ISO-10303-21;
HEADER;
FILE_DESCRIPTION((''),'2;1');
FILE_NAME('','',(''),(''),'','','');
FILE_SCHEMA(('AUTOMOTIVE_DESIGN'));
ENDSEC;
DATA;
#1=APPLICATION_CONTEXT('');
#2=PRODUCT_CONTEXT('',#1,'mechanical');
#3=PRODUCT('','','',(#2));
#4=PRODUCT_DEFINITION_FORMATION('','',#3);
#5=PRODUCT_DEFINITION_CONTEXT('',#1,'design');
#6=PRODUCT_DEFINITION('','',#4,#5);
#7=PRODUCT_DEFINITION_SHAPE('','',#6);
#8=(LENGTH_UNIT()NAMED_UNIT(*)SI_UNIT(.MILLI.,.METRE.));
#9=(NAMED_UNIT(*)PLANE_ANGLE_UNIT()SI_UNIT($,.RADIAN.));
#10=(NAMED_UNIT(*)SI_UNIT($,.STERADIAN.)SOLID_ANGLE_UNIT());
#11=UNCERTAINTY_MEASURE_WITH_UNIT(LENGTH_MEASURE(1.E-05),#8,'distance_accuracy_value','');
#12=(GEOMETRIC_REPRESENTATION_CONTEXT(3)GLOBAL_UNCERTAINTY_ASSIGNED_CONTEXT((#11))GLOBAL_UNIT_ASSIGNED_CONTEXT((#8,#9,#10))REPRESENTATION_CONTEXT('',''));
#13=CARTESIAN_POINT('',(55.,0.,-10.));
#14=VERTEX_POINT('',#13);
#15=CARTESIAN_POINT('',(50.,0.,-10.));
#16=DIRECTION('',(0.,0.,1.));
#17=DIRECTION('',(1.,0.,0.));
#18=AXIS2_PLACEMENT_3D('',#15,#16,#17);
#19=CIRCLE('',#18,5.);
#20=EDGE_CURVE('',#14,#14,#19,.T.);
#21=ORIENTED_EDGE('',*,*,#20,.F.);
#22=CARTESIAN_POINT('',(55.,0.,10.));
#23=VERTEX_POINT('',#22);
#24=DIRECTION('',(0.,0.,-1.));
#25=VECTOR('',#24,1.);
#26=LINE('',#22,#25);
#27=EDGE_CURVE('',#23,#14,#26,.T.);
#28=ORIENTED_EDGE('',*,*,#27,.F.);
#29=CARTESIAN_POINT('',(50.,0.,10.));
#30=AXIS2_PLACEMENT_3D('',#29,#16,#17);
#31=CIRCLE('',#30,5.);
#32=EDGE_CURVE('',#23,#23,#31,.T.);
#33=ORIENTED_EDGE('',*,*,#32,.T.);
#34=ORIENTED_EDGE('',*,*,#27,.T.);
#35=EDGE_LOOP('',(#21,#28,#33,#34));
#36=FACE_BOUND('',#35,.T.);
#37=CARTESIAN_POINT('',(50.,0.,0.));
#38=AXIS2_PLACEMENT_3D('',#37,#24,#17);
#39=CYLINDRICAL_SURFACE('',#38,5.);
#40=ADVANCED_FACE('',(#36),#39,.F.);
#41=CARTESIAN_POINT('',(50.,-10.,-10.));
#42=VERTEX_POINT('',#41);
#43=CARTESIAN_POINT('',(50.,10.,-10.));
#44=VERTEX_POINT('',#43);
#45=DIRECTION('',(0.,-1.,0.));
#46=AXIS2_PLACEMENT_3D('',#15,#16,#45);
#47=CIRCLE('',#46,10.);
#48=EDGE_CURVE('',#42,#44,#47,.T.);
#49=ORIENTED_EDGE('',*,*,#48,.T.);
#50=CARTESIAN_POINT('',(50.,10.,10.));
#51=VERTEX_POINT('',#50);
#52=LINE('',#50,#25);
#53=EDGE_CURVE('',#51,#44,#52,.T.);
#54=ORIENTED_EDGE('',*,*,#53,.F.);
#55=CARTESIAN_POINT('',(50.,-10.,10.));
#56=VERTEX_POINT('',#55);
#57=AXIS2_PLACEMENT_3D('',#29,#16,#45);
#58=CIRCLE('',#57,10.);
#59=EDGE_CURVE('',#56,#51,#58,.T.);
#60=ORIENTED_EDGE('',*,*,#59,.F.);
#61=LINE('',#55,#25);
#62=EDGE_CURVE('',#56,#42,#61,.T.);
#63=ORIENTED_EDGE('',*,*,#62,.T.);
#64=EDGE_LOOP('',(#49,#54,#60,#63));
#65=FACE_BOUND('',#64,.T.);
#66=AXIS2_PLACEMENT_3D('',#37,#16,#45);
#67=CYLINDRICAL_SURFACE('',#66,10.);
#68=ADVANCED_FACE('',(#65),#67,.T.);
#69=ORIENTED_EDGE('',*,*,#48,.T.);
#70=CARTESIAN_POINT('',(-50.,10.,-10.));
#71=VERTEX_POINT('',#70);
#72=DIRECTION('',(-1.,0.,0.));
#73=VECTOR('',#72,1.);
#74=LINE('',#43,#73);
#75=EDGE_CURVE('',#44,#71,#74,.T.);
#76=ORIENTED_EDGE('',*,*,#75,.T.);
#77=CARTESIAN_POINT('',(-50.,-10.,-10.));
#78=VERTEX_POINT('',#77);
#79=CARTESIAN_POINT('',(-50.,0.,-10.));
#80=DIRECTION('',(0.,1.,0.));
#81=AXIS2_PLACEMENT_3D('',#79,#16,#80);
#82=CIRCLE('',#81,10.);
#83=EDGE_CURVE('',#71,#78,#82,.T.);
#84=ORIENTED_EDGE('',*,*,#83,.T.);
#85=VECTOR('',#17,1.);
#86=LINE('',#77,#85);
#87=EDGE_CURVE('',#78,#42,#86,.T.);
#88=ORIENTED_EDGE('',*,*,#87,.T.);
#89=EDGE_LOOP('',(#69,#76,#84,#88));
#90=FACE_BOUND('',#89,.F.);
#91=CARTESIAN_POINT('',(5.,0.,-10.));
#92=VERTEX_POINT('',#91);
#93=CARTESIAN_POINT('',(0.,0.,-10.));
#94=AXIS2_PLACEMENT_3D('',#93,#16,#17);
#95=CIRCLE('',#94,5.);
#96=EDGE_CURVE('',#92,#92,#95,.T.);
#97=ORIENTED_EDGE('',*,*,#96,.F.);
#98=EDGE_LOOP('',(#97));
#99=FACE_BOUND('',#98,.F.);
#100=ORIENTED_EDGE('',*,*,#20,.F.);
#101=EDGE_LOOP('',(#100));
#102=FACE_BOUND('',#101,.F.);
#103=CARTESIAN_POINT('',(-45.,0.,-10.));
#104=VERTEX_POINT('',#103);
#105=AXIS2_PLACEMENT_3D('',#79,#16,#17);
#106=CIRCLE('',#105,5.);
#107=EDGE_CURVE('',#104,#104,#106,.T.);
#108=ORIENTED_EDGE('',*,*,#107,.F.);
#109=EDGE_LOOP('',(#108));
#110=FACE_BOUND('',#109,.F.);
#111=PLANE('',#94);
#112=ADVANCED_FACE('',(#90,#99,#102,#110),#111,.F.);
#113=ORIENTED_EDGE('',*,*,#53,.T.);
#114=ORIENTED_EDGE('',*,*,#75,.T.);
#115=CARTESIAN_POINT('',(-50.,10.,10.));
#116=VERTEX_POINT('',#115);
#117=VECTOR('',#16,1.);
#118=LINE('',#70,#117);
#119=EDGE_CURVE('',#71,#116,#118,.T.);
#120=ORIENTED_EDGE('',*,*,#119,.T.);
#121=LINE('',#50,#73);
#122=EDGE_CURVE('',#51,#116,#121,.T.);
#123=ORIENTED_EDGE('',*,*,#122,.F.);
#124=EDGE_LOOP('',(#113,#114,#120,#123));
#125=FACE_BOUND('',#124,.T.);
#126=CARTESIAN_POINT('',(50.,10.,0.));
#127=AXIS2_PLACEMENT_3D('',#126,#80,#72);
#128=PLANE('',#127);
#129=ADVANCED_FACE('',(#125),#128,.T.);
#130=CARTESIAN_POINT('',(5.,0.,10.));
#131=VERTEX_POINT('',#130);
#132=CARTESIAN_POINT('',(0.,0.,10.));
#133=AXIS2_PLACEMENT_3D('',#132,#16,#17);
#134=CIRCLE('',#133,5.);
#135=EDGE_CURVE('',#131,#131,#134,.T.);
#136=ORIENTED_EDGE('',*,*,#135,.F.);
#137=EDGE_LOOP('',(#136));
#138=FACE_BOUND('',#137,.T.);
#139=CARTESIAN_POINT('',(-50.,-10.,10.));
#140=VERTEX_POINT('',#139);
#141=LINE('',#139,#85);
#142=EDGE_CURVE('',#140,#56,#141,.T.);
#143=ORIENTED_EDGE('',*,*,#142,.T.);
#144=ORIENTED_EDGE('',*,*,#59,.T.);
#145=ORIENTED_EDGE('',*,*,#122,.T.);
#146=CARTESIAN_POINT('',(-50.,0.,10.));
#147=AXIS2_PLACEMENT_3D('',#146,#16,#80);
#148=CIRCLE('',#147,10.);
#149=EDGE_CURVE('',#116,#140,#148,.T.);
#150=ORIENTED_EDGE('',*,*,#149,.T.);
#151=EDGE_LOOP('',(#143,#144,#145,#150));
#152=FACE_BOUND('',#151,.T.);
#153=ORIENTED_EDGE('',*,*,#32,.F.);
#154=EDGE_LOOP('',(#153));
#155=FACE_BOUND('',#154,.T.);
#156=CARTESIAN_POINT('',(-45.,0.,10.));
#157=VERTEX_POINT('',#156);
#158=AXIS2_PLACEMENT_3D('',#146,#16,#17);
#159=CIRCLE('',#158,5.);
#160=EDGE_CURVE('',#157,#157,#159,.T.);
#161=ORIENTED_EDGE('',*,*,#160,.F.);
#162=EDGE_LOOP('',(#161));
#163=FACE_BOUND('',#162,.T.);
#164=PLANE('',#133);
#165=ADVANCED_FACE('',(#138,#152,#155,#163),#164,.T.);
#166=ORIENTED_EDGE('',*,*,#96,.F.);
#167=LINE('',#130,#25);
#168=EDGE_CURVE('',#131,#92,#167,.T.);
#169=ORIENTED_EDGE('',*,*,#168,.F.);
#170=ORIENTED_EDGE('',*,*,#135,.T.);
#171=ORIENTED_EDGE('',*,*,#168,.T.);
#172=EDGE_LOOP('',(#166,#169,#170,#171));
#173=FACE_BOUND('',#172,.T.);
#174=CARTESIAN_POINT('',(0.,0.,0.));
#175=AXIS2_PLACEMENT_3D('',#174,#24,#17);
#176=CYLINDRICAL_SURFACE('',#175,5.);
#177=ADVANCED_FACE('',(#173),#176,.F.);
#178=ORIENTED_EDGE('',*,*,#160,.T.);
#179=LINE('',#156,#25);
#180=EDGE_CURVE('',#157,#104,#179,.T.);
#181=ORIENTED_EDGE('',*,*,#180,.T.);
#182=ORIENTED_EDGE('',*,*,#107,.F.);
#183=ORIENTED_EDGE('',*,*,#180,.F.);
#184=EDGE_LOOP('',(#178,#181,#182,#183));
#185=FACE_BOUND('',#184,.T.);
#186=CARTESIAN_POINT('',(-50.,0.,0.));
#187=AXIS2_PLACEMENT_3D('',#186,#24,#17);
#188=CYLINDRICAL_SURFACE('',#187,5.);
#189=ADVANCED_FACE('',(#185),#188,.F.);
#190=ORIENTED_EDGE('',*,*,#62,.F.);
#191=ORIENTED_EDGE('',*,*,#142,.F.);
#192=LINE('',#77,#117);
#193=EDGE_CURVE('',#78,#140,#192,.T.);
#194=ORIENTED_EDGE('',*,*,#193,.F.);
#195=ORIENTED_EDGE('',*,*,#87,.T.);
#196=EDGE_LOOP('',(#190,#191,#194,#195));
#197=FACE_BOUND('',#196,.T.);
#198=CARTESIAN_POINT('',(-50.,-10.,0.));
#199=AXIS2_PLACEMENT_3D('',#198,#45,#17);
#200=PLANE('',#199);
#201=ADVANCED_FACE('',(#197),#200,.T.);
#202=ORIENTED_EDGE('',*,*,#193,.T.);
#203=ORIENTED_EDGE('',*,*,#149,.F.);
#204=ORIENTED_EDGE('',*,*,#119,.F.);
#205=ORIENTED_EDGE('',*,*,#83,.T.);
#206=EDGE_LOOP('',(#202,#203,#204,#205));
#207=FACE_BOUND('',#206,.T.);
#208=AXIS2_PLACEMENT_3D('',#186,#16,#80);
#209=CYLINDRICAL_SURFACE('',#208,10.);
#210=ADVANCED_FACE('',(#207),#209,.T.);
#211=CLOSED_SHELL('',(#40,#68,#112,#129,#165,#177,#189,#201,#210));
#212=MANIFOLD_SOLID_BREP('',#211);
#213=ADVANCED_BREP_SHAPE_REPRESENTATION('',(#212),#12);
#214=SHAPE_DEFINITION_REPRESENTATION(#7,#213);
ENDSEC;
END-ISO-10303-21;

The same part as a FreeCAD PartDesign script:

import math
import FreeCAD as App
import Part
import Sketcher

doc = App.newDocument("Part")
body = doc.addObject("PartDesign::Body", "Body")

# Sketch on XY plane
sketch1 = doc.addObject("Sketcher::SketchObject", "Sketch")
body.addObject(sketch1)
sketch1.AttachmentSupport = (doc.XY_Plane, [""])
sketch1.MapMode = "FlatFace"
sketch1.addGeometry([
    Part.LineSegment(App.Vector(50, 10, 0), App.Vector(-50, 10, 0)),  # 0
    Part.ArcOfCircle(Part.Circle(App.Vector(-50, 0, 0), App.Vector(0, 0, 1), 10), math.radians(90), math.radians(270)),  # 1
    Part.LineSegment(App.Vector(-50, -10, 0), App.Vector(50, -10, 0)),  # 2
    Part.ArcOfCircle(Part.Circle(App.Vector(50, 0, 0), App.Vector(0, 0, 1), 10), math.radians(-90), math.radians(90)),  # 3
    Part.Circle(App.Vector(-50, 0, 0), App.Vector(0, 0, 1), 5),  # 4
    Part.Circle(App.Vector(0, 0, 0), App.Vector(0, 0, 1), 5),  # 5
    Part.Circle(App.Vector(50, 0, 0), App.Vector(0, 0, 1), 5),  # 6
], False)
sketch1.addConstraint([
    Sketcher.Constraint("Tangent", 0, 2, 1, 1),
    Sketcher.Constraint("Tangent", 1, 2, 2, 1),
    Sketcher.Constraint("Tangent", 2, 2, 3, 1),
    Sketcher.Constraint("Tangent", 3, 2, 0, 1),
    Sketcher.Constraint("Horizontal", 0),
    Sketcher.Constraint("Horizontal", 2),
    Sketcher.Constraint("Coincident", 5, 3, -1, 1),
    Sketcher.Constraint("Coincident", 4, 3, 1, 3),
    Sketcher.Constraint("Coincident", 6, 3, 3, 3),
    Sketcher.Constraint("Equal", 4, 5),
    Sketcher.Constraint("Equal", 5, 6),
    Sketcher.Constraint("Symmetric", 1, 3, 3, 3, -1, 1),
    Sketcher.Constraint("Diameter", 4, 10.0),
    Sketcher.Constraint("Radius", 1, 10.0),
    Sketcher.Constraint("DistanceX", 0, 2, 0, 1, 100.0),
])
pad1 = doc.addObject("PartDesign::Pad", "Pad")
body.addObject(pad1)
pad1.Profile = sketch1
pad1.Length = 20
pad1.Midplane = True

doc.recompute()
